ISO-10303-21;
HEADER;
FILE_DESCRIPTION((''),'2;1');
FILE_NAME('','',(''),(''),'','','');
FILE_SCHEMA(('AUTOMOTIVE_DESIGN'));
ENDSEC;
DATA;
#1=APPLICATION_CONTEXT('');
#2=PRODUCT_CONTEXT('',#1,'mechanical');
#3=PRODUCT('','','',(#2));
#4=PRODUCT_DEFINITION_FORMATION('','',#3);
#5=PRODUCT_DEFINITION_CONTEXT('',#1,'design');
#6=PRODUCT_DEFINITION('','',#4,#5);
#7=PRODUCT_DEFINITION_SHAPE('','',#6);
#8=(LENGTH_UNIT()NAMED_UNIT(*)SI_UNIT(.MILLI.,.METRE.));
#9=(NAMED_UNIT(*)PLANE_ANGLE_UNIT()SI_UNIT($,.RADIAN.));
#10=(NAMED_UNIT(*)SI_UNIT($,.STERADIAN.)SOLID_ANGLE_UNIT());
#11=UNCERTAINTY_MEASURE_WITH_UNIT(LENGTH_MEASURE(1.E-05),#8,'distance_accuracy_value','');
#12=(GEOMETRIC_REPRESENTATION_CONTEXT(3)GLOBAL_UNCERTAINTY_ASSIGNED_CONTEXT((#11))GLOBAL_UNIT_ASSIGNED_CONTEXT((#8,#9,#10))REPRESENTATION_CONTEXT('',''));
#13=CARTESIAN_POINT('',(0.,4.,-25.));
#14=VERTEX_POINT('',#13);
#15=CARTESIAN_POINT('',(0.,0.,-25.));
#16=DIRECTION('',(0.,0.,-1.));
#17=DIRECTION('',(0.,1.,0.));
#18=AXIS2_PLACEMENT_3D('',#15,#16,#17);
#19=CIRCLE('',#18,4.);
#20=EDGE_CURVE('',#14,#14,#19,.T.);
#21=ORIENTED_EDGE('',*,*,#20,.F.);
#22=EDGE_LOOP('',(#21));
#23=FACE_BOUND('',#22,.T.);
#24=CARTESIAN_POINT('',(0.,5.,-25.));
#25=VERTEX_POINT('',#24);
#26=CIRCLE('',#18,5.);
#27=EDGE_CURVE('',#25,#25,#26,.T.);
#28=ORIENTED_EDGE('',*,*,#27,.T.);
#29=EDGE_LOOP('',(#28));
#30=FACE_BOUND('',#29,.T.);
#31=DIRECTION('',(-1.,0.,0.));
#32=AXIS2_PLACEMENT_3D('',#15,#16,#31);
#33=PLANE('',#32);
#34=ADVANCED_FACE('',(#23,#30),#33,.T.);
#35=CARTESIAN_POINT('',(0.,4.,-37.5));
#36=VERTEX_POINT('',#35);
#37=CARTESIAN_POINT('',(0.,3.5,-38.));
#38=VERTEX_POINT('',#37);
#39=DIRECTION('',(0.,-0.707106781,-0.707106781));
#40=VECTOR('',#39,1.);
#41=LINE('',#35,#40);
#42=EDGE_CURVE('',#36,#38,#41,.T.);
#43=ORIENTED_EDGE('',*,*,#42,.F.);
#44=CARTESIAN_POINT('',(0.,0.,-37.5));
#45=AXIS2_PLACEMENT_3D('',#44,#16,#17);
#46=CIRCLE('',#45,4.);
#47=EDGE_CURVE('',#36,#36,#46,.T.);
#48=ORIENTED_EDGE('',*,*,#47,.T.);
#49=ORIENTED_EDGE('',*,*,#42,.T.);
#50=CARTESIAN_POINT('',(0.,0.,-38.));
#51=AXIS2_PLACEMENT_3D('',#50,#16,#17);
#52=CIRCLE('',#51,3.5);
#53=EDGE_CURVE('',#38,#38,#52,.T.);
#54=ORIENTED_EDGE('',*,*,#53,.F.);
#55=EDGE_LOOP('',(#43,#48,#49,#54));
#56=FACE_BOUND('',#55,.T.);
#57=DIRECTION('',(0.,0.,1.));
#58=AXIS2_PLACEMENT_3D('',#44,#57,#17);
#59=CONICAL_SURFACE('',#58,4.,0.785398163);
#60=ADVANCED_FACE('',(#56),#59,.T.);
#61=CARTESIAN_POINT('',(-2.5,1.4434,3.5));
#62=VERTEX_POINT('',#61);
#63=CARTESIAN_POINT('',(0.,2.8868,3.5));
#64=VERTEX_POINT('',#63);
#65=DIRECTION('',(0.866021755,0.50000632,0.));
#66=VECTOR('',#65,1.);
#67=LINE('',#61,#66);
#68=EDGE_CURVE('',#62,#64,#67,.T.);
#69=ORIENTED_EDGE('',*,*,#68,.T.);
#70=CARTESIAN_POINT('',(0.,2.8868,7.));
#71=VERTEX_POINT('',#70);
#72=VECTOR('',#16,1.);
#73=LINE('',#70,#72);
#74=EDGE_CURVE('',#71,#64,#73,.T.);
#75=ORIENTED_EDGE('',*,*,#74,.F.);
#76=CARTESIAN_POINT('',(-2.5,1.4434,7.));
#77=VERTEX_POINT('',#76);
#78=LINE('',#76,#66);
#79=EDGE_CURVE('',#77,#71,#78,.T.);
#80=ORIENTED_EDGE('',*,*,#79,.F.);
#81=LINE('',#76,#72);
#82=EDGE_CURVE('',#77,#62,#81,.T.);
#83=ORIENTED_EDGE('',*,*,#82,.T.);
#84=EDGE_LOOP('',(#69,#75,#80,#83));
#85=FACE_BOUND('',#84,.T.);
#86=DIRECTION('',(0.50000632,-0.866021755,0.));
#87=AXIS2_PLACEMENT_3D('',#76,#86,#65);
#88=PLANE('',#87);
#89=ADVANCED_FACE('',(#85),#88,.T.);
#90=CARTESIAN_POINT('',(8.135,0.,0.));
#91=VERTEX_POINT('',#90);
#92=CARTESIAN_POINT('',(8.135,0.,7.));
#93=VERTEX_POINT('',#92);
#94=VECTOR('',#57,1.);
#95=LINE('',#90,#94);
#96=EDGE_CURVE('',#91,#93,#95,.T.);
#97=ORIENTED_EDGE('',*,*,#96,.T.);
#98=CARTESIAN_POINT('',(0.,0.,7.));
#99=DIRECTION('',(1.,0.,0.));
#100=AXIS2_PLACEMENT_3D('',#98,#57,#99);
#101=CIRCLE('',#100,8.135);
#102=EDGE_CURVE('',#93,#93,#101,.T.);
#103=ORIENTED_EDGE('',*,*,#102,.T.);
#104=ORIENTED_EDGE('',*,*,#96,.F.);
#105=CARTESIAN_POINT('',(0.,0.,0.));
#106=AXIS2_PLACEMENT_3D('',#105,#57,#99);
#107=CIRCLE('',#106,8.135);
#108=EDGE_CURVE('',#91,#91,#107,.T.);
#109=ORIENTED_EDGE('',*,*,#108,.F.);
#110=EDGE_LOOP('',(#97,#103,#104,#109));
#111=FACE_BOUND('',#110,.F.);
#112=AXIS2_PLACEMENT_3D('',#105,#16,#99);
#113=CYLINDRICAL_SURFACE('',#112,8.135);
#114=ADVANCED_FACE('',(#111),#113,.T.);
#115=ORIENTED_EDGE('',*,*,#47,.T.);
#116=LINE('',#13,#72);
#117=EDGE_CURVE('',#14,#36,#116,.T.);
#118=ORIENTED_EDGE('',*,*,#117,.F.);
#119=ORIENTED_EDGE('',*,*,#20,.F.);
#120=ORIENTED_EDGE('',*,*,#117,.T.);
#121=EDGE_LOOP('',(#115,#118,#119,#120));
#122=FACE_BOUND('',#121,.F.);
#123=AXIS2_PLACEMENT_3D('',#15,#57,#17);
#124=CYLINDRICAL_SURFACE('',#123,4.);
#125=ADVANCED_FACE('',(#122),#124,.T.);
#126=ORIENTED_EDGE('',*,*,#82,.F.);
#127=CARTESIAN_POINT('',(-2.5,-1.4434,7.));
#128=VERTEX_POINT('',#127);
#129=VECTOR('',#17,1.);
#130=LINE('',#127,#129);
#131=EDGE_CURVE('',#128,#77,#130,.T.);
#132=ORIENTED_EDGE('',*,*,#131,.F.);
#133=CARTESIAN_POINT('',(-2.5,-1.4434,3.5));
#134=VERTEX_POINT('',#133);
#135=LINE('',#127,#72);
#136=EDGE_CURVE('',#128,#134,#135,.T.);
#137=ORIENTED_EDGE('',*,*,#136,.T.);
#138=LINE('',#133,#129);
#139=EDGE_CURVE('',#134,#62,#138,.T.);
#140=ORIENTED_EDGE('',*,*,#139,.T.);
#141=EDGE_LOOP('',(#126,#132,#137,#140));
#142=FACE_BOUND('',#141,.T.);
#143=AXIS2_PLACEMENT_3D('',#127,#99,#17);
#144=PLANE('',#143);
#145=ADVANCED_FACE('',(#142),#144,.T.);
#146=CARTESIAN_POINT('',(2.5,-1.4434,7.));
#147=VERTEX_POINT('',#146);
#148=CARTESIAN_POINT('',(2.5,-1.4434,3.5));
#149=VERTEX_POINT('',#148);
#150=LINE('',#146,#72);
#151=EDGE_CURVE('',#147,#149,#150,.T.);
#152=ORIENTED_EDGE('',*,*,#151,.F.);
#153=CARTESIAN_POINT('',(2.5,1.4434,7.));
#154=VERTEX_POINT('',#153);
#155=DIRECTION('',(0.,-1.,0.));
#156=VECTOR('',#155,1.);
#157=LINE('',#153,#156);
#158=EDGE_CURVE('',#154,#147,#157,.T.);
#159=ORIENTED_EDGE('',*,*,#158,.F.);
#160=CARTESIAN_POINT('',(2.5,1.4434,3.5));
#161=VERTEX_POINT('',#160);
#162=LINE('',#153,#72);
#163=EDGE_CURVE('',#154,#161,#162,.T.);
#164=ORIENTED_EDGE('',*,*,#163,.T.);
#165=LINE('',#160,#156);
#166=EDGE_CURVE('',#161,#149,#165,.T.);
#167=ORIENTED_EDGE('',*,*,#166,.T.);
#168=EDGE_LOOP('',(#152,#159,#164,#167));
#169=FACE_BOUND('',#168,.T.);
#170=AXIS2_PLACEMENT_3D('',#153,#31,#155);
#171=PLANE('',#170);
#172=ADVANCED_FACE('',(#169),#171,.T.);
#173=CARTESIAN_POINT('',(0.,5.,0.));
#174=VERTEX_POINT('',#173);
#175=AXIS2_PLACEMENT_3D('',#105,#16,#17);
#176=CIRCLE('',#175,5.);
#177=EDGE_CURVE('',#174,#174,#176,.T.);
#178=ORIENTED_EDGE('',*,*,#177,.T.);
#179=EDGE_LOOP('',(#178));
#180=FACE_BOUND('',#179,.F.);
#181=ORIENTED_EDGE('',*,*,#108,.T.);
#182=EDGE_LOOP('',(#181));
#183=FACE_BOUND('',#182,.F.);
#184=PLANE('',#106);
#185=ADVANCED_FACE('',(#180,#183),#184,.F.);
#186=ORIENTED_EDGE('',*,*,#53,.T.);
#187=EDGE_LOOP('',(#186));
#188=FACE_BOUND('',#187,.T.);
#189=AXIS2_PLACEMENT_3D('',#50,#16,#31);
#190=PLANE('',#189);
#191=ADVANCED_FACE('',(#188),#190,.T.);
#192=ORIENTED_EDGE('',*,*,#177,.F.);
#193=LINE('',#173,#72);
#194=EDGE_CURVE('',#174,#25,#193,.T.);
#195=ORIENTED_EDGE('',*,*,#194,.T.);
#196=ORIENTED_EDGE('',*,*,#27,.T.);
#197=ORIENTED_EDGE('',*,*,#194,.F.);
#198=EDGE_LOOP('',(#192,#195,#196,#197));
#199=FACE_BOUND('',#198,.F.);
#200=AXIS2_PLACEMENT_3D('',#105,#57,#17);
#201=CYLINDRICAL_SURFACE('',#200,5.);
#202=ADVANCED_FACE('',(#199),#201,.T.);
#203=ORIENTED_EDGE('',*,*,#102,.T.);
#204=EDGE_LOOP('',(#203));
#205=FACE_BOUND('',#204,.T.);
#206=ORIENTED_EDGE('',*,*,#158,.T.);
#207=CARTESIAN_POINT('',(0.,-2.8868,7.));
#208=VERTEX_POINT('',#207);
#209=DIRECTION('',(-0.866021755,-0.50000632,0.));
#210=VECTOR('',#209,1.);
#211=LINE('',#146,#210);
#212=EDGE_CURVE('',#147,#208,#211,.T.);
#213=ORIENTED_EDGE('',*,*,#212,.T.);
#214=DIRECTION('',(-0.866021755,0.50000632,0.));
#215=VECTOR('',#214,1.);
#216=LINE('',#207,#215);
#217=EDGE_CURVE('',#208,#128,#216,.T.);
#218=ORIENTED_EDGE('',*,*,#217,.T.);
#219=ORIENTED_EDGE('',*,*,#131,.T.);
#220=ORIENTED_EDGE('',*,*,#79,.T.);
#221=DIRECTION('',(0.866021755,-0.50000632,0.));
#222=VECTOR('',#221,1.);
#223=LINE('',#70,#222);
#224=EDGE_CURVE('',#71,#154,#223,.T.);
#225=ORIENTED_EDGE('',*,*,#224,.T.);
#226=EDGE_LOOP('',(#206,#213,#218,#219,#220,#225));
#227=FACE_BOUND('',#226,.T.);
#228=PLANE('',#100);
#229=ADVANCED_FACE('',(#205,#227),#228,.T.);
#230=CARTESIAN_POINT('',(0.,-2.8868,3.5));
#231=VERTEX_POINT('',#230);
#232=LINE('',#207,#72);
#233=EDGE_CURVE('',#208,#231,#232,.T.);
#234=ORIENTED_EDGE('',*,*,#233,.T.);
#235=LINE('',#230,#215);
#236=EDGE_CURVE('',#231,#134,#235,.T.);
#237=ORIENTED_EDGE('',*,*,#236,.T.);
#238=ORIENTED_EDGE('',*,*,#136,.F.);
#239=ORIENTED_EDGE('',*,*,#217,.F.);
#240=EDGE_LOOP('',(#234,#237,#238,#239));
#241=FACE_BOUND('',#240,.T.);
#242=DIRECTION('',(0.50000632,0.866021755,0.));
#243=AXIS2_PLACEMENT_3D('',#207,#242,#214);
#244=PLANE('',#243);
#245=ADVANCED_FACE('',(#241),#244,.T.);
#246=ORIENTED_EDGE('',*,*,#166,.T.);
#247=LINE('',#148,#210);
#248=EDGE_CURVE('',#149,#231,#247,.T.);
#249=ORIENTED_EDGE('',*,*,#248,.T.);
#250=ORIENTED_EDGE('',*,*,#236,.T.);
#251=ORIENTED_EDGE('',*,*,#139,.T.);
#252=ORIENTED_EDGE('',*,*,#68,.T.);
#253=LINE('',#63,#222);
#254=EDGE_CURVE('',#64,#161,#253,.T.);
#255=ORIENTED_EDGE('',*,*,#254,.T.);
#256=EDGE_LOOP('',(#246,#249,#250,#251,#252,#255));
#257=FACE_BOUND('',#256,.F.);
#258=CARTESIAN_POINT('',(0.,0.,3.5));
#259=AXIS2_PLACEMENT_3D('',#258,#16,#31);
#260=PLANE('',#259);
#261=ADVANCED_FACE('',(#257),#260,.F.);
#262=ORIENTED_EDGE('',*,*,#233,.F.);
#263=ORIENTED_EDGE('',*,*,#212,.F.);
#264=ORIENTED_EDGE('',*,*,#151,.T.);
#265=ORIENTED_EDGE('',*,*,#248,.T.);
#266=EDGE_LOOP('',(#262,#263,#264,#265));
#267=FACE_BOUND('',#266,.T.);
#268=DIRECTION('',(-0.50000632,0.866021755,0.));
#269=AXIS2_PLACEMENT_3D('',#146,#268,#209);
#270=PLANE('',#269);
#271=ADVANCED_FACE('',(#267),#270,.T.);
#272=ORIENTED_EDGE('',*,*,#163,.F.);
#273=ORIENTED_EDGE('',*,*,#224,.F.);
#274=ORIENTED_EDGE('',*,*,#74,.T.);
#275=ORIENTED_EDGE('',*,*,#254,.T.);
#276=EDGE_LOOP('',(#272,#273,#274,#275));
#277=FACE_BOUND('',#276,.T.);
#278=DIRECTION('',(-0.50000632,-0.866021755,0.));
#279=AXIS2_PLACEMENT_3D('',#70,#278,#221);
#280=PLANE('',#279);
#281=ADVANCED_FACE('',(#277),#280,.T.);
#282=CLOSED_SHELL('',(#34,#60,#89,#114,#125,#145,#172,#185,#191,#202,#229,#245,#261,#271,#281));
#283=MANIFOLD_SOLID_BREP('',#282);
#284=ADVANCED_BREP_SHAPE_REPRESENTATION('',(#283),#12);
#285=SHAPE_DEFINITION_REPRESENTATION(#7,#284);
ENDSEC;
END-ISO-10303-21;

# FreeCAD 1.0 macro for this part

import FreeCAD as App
import Part
import Sketcher
Q = App.Units.Quantity


def edges_at(feature, points):
    """Names of the edges that pass closest to the given points."""
    edges = feature.Shape.Edges
    near = lambda p: min(range(len(edges)), key=lambda i: edges[i].distToShape(Part.Vertex(*p))[0])
    return sorted({f"Edge{near(p) + 1}" for p in points})

doc = App.newDocument("Part")
body = doc.addObject("PartDesign::Body", "Body")

# Sketch on XY plane
sketch1 = body.newObject("Sketcher::SketchObject", "Sketch")
sketch1.AttachmentSupport = (doc.getObject("XY_Plane"), [""])
sketch1.MapMode = "FlatFace"
sketch1.addGeometry(Part.Circle(App.Vector(0, 0, 0), App.Vector(0, 0, 1), 8), False)
sketch1.addConstraint([
    Sketcher.Constraint("Coincident", 0, 3, -1, 1),
    Sketcher.Constraint("Diameter", 0, Q("16.27 mm")),
])
pad1 = body.newObject("PartDesign::Pad", "Pad")
pad1.Profile = sketch1
pad1.Length = 7

# Sketch on XY plane
sketch2 = body.newObject("Sketcher::SketchObject", "Sketch001")
sketch2.AttachmentSupport = (doc.getObject("XY_Plane"), [""])
sketch2.MapMode = "FlatFace"
sketch2.AttachmentOffset = App.Placement(App.Vector(0, 0, 7), App.Rotation())
sketch2.addGeometry([
    Part.LineSegment(App.Vector(-2.5, -1.4, 0), App.Vector(0, -2.9, 0)),  # 0
    Part.LineSegment(App.Vector(0, -2.9, 0), App.Vector(2.5, -1.4, 0)),  # 1
    Part.LineSegment(App.Vector(2.5, -1.4, 0), App.Vector(2.5, 1.4, 0)),  # 2
    Part.LineSegment(App.Vector(2.5, 1.4, 0), App.Vector(0, 2.9, 0)),  # 3
    Part.LineSegment(App.Vector(0, 2.9, 0), App.Vector(-2.5, 1.4, 0)),  # 4
    Part.LineSegment(App.Vector(-2.5, 1.4, 0), App.Vector(-2.5, -1.4, 0)),  # 5
], False)
sketch2.addConstraint([
    Sketcher.Constraint("Coincident", 0, 2, 1, 1),
    Sketcher.Constraint("Coincident", 1, 2, 2, 1),
    Sketcher.Constraint("Coincident", 2, 2, 3, 1),
    Sketcher.Constraint("Coincident", 3, 2, 4, 1),
    Sketcher.Constraint("Coincident", 4, 2, 5, 1),
    Sketcher.Constraint("Coincident", 5, 2, 0, 1),
    Sketcher.Constraint("Vertical", 2),
    Sketcher.Constraint("Vertical", 5),
    Sketcher.Constraint("Symmetric", 0, 2, 3, 2, -1, 1),
    Sketcher.Constraint("Symmetric", 1, 2, 4, 2, -1, 1),
    Sketcher.Constraint("PointOnObject", 0, 2, -2),
    Sketcher.Constraint("Parallel", 0, 3),
    Sketcher.Constraint("Horizontal", 2, 2, 4, 2),
    Sketcher.Constraint("Angle", 0, Q("-30.0004 deg")),
    Sketcher.Constraint("DistanceX", 4, 2, 2, 2, Q("5 mm")),
    Sketcher.Constraint("DistanceY", 2, 1, 2, 2, Q("2.8868 mm")),
])
pocket1 = body.newObject("PartDesign::Pocket", "Pocket")
pocket1.Profile = sketch2
pocket1.Length = 3.5

# Sketch on XY plane
sketch3 = body.newObject("Sketcher::SketchObject", "Sketch002")
sketch3.AttachmentSupport = (doc.getObject("XY_Plane"), [""])
sketch3.MapMode = "FlatFace"
sketch3.addGeometry(Part.Circle(App.Vector(0, 0, 0), App.Vector(0, 0, 1), 5), False)
sketch3.addConstraint([
    Sketcher.Constraint("Coincident", 0, 3, -1, 1),
    Sketcher.Constraint("Diameter", 0, Q("10 mm")),
])
pad2 = body.newObject("PartDesign::Pad", "Pad001")
pad2.Profile = sketch3
pad2.Length = 25
pad2.Reversed = True

# Sketch on XY plane
sketch4 = body.newObject("Sketcher::SketchObject", "Sketch003")
sketch4.AttachmentSupport = (doc.getObject("XY_Plane"), [""])
sketch4.MapMode = "FlatFace"
sketch4.AttachmentOffset = App.Placement(App.Vector(0, 0, -25), App.Rotation())
sketch4.addGeometry(Part.Circle(App.Vector(0, 0, 0), App.Vector(0, 0, 1), 4), False)
sketch4.addConstraint([
    Sketcher.Constraint("Coincident", 0, 3, -1, 1),
    Sketcher.Constraint("Diameter", 0, Q("8 mm")),
])
pad3 = body.newObject("PartDesign::Pad", "Pad002")
pad3.Profile = sketch4
pad3.Length = 13
pad3.Reversed = True
doc.recompute()

chamfer = body.newObject("PartDesign::Chamfer", "Chamfer")
chamfer.Base = (pad3, edges_at(pad3, [(0, -4, -38)]))
chamfer.Size = 0.5

doc.recompute()
